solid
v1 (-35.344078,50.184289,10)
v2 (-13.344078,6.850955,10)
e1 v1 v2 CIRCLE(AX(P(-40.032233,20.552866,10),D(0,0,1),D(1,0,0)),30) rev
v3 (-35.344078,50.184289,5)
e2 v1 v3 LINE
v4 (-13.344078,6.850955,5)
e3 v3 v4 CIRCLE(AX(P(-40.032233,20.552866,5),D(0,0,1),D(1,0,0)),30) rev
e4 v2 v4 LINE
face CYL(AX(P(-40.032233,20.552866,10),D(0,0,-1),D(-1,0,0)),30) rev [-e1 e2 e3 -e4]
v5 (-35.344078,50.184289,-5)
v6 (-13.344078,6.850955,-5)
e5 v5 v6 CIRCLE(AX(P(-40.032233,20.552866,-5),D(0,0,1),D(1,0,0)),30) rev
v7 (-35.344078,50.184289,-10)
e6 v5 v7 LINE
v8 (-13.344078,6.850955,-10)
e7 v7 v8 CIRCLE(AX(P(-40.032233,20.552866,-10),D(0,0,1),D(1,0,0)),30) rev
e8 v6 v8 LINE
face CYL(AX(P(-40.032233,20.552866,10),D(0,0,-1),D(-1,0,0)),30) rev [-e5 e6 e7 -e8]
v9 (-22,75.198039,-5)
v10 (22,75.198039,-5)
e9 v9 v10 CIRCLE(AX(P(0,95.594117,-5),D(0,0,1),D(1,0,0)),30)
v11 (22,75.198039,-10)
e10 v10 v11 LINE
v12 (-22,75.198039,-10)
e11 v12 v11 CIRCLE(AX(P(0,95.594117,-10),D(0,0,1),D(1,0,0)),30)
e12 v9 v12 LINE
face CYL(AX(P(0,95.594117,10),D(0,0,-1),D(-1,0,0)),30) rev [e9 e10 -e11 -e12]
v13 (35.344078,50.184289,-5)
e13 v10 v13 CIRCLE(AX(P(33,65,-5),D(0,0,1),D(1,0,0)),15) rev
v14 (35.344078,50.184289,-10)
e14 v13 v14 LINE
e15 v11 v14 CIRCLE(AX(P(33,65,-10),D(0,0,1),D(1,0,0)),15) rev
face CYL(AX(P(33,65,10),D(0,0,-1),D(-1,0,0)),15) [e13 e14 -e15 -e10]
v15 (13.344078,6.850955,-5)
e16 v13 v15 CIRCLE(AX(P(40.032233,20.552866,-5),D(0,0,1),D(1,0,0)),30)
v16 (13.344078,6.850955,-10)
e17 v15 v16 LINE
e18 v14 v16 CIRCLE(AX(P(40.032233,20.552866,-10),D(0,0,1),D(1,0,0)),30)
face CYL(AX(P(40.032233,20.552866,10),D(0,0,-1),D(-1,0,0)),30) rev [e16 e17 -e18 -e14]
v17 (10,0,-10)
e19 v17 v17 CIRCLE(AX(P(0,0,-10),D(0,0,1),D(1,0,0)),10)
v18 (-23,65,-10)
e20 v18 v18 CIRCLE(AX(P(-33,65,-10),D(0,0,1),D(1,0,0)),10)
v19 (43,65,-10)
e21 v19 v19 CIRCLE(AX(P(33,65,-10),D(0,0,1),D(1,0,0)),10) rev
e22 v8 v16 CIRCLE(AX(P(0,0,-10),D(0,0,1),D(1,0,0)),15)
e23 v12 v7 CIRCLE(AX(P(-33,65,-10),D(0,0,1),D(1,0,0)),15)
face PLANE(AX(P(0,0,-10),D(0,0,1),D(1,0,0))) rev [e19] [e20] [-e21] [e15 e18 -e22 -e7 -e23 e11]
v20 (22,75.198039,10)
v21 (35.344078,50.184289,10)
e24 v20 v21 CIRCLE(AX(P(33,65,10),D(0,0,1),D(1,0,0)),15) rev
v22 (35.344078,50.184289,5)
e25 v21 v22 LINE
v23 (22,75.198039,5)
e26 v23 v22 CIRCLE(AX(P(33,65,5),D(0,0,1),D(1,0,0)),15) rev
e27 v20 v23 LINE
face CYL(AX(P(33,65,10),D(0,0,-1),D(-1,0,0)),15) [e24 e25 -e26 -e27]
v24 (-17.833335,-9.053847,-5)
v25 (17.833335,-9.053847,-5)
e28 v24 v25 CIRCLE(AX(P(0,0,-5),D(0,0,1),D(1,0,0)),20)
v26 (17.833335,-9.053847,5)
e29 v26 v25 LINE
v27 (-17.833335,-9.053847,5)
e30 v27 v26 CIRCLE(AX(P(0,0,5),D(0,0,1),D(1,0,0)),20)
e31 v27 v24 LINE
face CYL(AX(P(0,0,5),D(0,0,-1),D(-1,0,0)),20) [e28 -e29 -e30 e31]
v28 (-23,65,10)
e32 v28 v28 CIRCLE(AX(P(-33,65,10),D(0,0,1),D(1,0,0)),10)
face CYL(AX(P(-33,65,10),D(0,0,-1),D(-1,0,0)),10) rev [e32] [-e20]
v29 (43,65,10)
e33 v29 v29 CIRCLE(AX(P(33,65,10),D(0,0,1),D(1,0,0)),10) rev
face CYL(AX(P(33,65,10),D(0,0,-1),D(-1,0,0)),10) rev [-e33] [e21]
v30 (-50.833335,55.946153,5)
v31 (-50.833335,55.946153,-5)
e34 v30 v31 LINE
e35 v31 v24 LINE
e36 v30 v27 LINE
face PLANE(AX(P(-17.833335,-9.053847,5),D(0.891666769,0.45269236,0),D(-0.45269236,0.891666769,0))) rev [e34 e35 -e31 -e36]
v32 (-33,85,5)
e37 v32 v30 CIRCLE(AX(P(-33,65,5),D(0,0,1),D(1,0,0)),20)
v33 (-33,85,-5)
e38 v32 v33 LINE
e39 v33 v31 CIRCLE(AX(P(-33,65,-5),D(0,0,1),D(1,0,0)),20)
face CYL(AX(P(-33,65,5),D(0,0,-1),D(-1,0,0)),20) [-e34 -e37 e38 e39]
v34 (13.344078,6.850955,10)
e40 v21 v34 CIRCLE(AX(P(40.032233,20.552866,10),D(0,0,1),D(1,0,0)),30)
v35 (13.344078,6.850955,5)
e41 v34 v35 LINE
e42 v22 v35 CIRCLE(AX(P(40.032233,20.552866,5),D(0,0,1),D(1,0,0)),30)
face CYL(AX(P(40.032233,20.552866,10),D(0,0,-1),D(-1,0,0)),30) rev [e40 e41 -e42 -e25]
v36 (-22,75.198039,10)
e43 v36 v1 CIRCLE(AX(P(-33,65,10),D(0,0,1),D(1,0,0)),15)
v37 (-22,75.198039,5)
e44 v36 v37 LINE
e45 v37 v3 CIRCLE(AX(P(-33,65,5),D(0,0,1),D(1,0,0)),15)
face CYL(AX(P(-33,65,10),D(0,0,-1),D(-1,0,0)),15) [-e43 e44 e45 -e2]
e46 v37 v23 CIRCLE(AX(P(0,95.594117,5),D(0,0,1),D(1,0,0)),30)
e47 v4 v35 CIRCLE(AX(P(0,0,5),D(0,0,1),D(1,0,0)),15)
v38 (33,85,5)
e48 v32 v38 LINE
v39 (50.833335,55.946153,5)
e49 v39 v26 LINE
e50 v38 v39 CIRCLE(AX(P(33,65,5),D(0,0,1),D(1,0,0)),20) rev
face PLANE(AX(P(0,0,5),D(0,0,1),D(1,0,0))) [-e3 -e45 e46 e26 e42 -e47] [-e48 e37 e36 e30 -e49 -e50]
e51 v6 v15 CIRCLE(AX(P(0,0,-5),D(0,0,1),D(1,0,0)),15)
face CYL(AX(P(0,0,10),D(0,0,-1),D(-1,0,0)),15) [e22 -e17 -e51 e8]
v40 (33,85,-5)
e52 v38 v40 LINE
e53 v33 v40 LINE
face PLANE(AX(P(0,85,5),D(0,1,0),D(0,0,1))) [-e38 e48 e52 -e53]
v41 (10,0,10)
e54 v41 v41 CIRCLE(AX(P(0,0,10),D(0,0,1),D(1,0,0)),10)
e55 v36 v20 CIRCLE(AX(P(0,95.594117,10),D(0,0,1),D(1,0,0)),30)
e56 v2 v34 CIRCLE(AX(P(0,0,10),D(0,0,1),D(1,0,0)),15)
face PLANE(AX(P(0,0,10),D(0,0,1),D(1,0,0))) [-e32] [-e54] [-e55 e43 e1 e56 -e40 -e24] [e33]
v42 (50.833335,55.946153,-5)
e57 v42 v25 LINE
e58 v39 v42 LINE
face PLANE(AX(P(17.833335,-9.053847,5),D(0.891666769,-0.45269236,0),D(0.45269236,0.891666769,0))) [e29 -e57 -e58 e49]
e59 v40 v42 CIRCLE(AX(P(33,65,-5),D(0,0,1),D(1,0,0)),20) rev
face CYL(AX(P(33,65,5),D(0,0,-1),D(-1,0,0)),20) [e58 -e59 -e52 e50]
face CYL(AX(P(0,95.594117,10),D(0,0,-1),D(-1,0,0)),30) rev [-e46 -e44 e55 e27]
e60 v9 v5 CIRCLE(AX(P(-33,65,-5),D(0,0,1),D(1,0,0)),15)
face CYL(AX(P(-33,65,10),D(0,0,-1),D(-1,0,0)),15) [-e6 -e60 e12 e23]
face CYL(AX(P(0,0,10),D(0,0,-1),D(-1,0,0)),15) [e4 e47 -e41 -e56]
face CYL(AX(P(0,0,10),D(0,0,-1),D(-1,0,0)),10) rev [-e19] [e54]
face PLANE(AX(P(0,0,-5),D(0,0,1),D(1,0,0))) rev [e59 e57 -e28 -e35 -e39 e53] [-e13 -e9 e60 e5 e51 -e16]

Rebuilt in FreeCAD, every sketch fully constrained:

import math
import FreeCAD as App
import Part
import Sketcher
from FreeCAD import Vector
Q = App.Units.Quantity

doc = App.newDocument("Part")
body = doc.addObject("PartDesign::Body", "Body")

sketch1 = body.newObject("Sketcher::SketchObject", "Sketch")
sketch1.AttachmentSupport = (doc.getObject("XY_Plane"), [""])
sketch1.MapMode = "FlatFace"
sketch1.addGeometry([
    Part.ArcOfCircle(Part.Circle(Vector(0, 96, 0), Vector(0, 0, 1), 30), math.radians(-137), math.radians(-43)),
    Part.ArcOfCircle(Part.Circle(Vector(-33, 65, 0), Vector(0, 0, 1), 15), math.radians(43), math.radians(261)),
    Part.ArcOfCircle(Part.Circle(Vector(-40, 21, 0), Vector(0, 0, 1), 30), math.radians(-27), math.radians(81)),
    Part.ArcOfCircle(Part.Circle(Vector(0, 0, 0), Vector(0, 0, 1), 15), math.radians(153), math.radians(387)),
    Part.ArcOfCircle(Part.Circle(Vector(40, 21, 0), Vector(0, 0, 1), 30), math.radians(99), math.radians(207)),
    Part.ArcOfCircle(Part.Circle(Vector(33, 65, 0), Vector(0, 0, 1), 15), math.radians(-81), math.radians(137)),
    Part.Circle(Vector(0, 0, 0), Vector(0, 0, 1), 10),
    Part.Circle(Vector(33, 65, 0), Vector(0, 0, 1), 10),
    Part.Circle(Vector(-33, 65, 0), Vector(0, 0, 1), 10),
], False)
sketch1.addConstraint([
    Sketcher.Constraint("Tangent", 0, 1, 1, 1),
    Sketcher.Constraint("Tangent", 1, 2, 2, 2),
    Sketcher.Constraint("Tangent", 2, 1, 3, 1),
    Sketcher.Constraint("Tangent", 3, 2, 4, 2),
    Sketcher.Constraint("Tangent", 4, 1, 5, 1),
    Sketcher.Constraint("Tangent", 5, 2, 0, 2),
    Sketcher.Constraint("Coincident", 3, 3, -1, 1),
    Sketcher.Constraint("Coincident", 6, 3, -1, 1),
    Sketcher.Constraint("Coincident", 7, 3, 5, 3),
    Sketcher.Constraint("Coincident", 8, 3, 1, 3),
    Sketcher.Constraint("Equal", 0, 2),
    Sketcher.Constraint("Equal", 1, 3),
    Sketcher.Constraint("Equal", 2, 4),
    Sketcher.Constraint("Equal", 3, 5),
    Sketcher.Constraint("Equal", 6, 7),
    Sketcher.Constraint("Equal", 7, 8),
    Sketcher.Constraint("Symmetric", 1, 3, 5, 3, -2),
    Sketcher.Constraint("Diameter", 6, Q("20 mm")),
    Sketcher.Constraint("Radius", 0, Q("30 mm")),
    Sketcher.Constraint("Radius", 1, Q("15 mm")),
    Sketcher.Constraint("DistanceX", 1, 3, -1, 1, Q("33 mm")),
    Sketcher.Constraint("DistanceY", -1, 1, 1, 3, Q("65 mm")),
])
pad1 = body.newObject("PartDesign::Pad", "Pad")
pad1.Profile = sketch1
pad1.Length = 20
pad1.Midplane = True

sketch2 = body.newObject("Sketcher::SketchObject", "Sketch001")
sketch2.AttachmentSupport = (doc.getObject("XY_Plane"), [""])
sketch2.MapMode = "FlatFace"
sketch2.addGeometry([
    Part.ArcOfCircle(Part.Circle(Vector(33, 65, 0), Vector(0, 0, 1), 20), math.radians(-27), math.radians(90)),
    Part.LineSegment(Vector(33, 85, 0), Vector(-33, 85, 0)),
    Part.ArcOfCircle(Part.Circle(Vector(-33, 65, 0), Vector(0, 0, 1), 20), math.radians(90), math.radians(207)),
    Part.LineSegment(Vector(-51, 56, 0), Vector(-18, -9, 0)),
    Part.ArcOfCircle(Part.Circle(Vector(0, 0, 0), Vector(0, 0, 1), 20), math.radians(-153), math.radians(-27)),
    Part.LineSegment(Vector(18, -9, 0), Vector(51, 56, 0)),
    Part.ArcOfCircle(Part.Circle(Vector(0, 96, 0), Vector(0, 0, 1), 30), math.radians(-137), math.radians(-43)),
    Part.ArcOfCircle(Part.Circle(Vector(33, 65, 0), Vector(0, 0, 1), 15), math.radians(-81), math.radians(137)),
    Part.ArcOfCircle(Part.Circle(Vector(40, 21, 0), Vector(0, 0, 1), 30), math.radians(99), math.radians(207)),
    Part.ArcOfCircle(Part.Circle(Vector(0, 0, 0), Vector(0, 0, 1), 15), math.radians(153), math.radians(387)),
    Part.ArcOfCircle(Part.Circle(Vector(-40, 21, 0), Vector(0, 0, 1), 30), math.radians(-27), math.radians(81)),
    Part.ArcOfCircle(Part.Circle(Vector(-33, 65, 0), Vector(0, 0, 1), 15), math.radians(43), math.radians(261)),
], False)
sketch2.addConstraint([
    Sketcher.Constraint("Tangent", 0, 2, 1, 1),
    Sketcher.Constraint("Tangent", 1, 2, 2, 1),
    Sketcher.Constraint("Tangent", 2, 2, 3, 1),
    Sketcher.Constraint("Tangent", 3, 2, 4, 1),
    Sketcher.Constraint("Tangent", 4, 2, 5, 1),
    Sketcher.Constraint("Tangent", 5, 2, 0, 1),
    Sketcher.Constraint("Tangent", 6, 2, 7, 2),
    Sketcher.Constraint("Tangent", 7, 1, 8, 1),
    Sketcher.Constraint("Tangent", 8, 2, 9, 2),
    Sketcher.Constraint("Tangent", 9, 1, 10, 1),
    Sketcher.Constraint("Tangent", 10, 2, 11, 2),
    Sketcher.Constraint("Tangent", 11, 1, 6, 1),
    Sketcher.Constraint("Horizontal", 1),
    Sketcher.Constraint("Coincident", 4, 3, -1, 1),
    Sketcher.Constraint("Coincident", 9, 3, -1, 1),
    Sketcher.Constraint("Coincident", 7, 3, 0, 3),
    Sketcher.Constraint("Coincident", 11, 3, 2, 3),
    Sketcher.Constraint("Equal", 0, 2),
    Sketcher.Constraint("Equal", 2, 4),
    Sketcher.Constraint("Equal", 6, 8),
    Sketcher.Constraint("Equal", 7, 9),
    Sketcher.Constraint("Equal", 8, 10),
    Sketcher.Constraint("Equal", 9, 11),
    Sketcher.Constraint("PointOnObject", 6, 3, -2),
    Sketcher.Constraint("Radius", 0, Q("20 mm")),
    Sketcher.Constraint("Radius", 6, Q("30 mm")),
    Sketcher.Constraint("Radius", 7, Q("15 mm")),
    Sketcher.Constraint("DistanceX", 1, 2, 1, 1, Q("66 mm")),
    Sketcher.Constraint("DistanceY", -1, 1, 0, 3, Q("65 mm")),
])
pad2 = body.newObject("PartDesign::Pad", "Pad001")
pad2.Profile = sketch2
pad2.Length = 10
pad2.Midplane = True

doc.recompute()
